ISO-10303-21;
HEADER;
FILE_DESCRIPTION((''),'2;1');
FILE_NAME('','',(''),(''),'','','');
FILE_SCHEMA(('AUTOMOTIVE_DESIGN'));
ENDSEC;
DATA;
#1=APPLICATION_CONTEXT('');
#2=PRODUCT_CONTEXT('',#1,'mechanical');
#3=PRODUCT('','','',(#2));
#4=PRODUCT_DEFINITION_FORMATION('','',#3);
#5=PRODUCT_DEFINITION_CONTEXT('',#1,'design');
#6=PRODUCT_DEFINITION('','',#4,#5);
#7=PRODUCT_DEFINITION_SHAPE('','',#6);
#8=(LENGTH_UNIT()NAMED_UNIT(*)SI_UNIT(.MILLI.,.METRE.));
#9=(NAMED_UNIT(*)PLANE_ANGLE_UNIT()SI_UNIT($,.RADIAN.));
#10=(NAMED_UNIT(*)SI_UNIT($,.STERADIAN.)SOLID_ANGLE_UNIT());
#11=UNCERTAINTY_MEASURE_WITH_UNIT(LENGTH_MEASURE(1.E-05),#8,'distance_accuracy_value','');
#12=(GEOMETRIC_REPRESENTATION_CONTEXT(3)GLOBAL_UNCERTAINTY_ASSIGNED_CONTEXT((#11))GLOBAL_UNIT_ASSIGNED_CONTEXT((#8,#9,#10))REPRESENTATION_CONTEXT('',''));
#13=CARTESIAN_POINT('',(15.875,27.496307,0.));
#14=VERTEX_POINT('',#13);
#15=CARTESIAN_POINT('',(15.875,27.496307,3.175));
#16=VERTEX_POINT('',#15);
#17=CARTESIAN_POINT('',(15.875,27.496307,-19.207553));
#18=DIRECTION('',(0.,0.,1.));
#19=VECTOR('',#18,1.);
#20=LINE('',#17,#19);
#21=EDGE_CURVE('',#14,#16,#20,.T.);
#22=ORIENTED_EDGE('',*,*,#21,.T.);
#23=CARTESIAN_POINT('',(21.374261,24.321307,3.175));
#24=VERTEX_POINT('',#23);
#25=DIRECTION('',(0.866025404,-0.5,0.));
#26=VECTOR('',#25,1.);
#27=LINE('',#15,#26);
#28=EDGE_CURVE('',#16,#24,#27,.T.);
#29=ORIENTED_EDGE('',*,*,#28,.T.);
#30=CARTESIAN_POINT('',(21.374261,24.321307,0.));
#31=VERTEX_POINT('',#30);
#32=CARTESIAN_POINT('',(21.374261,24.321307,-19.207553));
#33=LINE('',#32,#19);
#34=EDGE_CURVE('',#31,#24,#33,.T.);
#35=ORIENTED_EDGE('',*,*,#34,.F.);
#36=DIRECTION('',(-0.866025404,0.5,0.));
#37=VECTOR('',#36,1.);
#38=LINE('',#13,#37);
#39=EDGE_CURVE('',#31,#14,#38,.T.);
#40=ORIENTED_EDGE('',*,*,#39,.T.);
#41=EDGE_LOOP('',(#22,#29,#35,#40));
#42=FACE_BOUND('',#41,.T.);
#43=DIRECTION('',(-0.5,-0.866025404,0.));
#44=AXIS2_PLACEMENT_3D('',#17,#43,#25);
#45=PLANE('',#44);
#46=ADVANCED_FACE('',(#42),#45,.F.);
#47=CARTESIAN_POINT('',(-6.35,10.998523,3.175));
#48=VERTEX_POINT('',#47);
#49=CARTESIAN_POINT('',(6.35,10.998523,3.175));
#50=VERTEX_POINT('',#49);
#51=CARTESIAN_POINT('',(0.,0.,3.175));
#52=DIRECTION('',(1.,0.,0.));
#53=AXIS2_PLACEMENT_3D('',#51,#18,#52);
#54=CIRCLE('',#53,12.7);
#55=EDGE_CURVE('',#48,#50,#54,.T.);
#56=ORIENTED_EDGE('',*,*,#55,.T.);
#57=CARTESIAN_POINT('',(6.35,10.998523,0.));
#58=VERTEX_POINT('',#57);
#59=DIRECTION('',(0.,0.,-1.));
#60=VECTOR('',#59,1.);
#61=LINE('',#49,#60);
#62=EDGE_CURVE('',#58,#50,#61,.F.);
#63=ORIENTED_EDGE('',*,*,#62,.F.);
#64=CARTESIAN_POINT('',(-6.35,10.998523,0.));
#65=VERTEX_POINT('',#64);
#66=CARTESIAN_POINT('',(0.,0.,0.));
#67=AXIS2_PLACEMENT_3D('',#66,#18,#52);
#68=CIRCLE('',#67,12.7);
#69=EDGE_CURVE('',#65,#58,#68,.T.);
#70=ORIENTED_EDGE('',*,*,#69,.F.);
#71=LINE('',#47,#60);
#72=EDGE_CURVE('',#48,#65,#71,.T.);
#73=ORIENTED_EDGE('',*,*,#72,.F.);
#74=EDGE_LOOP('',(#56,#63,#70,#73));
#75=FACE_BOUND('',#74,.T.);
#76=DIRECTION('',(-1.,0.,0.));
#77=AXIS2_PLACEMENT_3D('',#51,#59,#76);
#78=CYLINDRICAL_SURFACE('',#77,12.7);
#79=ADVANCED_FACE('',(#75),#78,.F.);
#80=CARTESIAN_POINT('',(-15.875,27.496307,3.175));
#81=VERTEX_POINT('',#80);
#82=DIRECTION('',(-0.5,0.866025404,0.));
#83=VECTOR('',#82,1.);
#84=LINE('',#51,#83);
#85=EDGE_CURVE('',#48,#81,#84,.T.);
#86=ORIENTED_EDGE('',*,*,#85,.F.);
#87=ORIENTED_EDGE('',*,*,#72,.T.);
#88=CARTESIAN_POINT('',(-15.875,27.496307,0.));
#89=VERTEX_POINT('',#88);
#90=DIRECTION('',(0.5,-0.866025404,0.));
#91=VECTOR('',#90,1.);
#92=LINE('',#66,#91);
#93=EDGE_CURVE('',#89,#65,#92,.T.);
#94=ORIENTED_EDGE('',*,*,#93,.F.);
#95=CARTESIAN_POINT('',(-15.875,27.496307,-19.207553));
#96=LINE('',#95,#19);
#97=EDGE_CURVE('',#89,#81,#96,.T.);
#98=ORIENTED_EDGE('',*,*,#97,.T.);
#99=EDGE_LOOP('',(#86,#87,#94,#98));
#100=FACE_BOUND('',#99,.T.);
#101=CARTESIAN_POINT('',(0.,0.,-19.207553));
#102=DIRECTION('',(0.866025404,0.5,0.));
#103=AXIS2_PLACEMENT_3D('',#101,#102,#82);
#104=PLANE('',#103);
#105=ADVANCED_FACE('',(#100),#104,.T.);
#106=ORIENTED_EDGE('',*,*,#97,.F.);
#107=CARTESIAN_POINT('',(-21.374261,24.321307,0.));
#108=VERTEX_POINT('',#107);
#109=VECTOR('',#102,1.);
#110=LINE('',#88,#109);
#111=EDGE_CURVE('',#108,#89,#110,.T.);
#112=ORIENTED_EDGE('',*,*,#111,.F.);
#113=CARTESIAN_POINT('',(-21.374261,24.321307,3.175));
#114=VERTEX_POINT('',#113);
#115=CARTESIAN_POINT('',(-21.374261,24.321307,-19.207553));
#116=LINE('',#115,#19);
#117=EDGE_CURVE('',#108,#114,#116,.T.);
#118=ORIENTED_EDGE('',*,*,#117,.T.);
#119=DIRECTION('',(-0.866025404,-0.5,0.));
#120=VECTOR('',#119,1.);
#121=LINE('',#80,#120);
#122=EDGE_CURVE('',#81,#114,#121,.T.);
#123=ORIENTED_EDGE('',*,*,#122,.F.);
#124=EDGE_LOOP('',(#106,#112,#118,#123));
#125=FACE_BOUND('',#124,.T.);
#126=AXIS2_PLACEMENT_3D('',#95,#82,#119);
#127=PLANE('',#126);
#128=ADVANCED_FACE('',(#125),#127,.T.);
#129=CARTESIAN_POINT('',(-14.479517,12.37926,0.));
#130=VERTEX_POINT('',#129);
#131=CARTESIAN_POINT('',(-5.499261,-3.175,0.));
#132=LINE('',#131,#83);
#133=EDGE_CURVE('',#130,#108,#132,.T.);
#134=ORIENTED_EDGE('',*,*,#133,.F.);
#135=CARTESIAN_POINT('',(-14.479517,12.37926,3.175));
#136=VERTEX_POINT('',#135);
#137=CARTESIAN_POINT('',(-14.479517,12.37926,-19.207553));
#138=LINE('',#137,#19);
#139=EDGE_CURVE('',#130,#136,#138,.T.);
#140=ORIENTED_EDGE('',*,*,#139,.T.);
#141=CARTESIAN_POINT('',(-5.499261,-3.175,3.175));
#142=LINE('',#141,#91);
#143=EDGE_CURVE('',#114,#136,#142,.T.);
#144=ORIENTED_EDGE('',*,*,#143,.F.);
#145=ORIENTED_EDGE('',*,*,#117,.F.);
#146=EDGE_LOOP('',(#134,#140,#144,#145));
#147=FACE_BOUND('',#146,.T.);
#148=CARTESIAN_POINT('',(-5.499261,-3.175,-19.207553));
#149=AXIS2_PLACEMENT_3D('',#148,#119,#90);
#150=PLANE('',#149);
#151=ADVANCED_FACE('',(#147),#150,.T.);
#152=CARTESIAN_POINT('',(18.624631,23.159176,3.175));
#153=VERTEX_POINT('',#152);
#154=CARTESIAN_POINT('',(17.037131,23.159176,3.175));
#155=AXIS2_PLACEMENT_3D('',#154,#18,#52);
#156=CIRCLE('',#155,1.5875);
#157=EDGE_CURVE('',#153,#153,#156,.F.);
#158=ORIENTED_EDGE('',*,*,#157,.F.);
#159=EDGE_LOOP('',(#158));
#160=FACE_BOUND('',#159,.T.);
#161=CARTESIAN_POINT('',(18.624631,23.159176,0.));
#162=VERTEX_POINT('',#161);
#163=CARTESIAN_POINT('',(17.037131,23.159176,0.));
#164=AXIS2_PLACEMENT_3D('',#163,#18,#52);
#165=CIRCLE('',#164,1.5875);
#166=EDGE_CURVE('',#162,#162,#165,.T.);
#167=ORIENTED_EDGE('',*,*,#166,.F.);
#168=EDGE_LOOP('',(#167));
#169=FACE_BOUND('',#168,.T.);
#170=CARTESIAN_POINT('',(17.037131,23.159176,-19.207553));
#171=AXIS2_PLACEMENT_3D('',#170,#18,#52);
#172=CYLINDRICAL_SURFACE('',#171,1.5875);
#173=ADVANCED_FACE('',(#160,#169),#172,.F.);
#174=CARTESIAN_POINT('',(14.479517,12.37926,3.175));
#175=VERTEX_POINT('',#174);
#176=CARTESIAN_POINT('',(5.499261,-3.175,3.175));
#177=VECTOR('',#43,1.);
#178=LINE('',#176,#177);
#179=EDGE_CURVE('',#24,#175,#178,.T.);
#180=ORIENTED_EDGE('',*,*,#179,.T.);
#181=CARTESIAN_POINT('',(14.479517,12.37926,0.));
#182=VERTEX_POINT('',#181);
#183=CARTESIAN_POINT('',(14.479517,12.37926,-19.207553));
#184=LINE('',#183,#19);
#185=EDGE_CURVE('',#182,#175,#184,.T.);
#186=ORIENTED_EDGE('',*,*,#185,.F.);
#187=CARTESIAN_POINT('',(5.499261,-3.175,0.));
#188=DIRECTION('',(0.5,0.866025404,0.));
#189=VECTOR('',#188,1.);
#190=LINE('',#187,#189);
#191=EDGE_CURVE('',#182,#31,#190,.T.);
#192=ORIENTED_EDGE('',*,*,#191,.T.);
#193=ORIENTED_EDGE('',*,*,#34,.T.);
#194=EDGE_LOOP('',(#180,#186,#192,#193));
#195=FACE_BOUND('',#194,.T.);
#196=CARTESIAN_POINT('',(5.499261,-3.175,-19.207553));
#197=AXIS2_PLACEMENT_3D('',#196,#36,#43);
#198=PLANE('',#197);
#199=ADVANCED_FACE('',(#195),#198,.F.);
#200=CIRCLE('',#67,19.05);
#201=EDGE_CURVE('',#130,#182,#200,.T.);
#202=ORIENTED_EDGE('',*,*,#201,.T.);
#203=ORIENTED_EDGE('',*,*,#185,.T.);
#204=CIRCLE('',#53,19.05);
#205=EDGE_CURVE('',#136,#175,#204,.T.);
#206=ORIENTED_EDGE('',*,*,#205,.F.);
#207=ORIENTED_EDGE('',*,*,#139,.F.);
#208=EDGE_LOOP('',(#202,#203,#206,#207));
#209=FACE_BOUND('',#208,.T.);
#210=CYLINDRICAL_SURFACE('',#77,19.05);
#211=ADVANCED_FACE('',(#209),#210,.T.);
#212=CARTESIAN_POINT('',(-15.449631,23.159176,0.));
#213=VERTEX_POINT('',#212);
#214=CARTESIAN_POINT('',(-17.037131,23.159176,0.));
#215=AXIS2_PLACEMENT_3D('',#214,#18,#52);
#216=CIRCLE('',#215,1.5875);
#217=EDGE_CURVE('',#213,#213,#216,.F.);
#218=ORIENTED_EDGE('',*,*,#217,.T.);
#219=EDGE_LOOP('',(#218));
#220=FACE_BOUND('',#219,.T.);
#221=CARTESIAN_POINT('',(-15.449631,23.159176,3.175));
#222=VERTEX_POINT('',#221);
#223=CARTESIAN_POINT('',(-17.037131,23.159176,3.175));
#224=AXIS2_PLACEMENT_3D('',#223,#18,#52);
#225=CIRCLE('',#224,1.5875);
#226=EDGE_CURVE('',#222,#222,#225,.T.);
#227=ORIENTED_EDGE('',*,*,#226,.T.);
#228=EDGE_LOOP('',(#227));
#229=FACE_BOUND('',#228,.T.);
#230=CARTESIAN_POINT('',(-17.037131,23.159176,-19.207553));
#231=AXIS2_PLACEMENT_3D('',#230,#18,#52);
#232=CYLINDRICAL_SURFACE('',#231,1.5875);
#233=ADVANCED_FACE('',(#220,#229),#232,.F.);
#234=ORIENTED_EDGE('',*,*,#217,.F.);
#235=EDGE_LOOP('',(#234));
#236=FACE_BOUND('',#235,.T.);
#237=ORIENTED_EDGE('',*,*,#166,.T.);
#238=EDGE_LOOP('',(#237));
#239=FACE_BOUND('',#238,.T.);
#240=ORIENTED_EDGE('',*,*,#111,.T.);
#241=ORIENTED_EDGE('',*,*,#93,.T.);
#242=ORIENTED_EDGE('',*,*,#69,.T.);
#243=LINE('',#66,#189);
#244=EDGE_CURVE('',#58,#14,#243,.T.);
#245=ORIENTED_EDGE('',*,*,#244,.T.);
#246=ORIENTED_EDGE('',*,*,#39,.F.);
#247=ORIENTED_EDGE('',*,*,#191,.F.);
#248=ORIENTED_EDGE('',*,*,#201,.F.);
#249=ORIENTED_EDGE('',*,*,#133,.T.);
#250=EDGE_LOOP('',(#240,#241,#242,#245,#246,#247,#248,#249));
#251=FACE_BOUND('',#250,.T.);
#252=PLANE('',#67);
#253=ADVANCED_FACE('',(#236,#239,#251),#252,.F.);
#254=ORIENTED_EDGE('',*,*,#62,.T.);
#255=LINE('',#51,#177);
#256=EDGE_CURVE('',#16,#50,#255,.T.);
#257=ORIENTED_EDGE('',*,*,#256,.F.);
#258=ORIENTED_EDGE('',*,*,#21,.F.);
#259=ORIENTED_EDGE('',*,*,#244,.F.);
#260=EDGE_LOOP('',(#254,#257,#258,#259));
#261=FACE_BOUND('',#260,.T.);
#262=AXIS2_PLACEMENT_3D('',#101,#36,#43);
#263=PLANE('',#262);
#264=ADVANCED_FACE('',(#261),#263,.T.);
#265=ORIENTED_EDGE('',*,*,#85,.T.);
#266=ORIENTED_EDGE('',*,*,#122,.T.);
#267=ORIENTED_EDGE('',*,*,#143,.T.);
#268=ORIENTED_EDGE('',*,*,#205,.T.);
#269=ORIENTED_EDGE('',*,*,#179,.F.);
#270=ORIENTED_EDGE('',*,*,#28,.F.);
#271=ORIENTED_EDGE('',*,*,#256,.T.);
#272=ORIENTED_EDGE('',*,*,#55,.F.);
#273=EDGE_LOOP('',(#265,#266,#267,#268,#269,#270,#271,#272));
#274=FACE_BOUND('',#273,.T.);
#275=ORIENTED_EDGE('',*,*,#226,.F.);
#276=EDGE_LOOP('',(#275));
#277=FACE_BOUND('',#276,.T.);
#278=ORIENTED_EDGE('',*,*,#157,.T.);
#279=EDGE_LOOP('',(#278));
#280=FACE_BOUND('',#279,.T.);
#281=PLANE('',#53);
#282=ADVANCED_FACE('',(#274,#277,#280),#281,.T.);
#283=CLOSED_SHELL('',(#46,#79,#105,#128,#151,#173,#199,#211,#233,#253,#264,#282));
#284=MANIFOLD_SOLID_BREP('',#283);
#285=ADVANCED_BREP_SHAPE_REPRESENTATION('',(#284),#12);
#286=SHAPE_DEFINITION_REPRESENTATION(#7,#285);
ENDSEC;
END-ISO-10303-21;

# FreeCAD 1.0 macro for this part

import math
import FreeCAD as App
import Part
import Sketcher

V = App.Vector
Q = App.Units.Quantity

doc = App.newDocument("Part")
body = doc.addObject("PartDesign::Body", "Body")

# Sketch on XY plane
sketch1 = body.newObject("Sketcher::SketchObject", "Sketch")
sketch1.AttachmentSupport = (doc.getObject("XY_Plane"), [""])
sketch1.MapMode = "FlatFace"
sketch1.addGeometry(Part.Circle(V(0, 0, 0), V(0, 0, 1), 19.05), False)
sketch1.addGeometry(Part.Circle(V(0, 0, 0), V(0, 0, 1), 12.7), False)
sketch1.addConstraint(Sketcher.Constraint("Coincident", 0, 3, -1, 1))
sketch1.addConstraint(Sketcher.Constraint("Coincident", 1, 3, -1, 1))
sketch1.addConstraint(Sketcher.Constraint("Diameter", 1, Q("1 in")))
sketch1.addConstraint(Sketcher.Constraint("Diameter", 0, Q("1.5 in")))
pad1 = body.newObject("PartDesign::Pad", "Pad")
pad1.Profile = sketch1
pad1.Length = Q("0.125 in")

# Sketch on XY plane
sketch2 = body.newObject("Sketcher::SketchObject", "Sketch001")
sketch2.AttachmentSupport = (doc.getObject("XY_Plane"), [""])
sketch2.MapMode = "FlatFace"
sketch2.AttachmentOffset = App.Placement(V(0, 0, 0.125 * 25.4), App.Rotation())
sketch2.addGeometry(Part.ArcOfCircle(Part.Circle(V(0, 0, 0), V(0, 0, 1), 19.05), math.radians(120), math.radians(139.471221)), False)
sketch2.addGeometry(Part.LineSegment(V(-9.525, 16.497784, 0), V(-15.875, 27.496307, 0)), False)
sketch2.addGeometry(Part.LineSegment(V(-15.875, 27.496307, 0), V(-21.374261, 24.321307, 0)), False)
sketch2.addGeometry(Part.LineSegment(V(-21.374261, 24.321307, 0), V(-15.024261, 13.322784, 0)), False)
sketch2.addGeometry(Part.LineSegment(V(-15.024261, 13.322784, 0), V(-14.479517, 12.37926, 0)), False)
sketch2.addGeometry(Part.Circle(V(-17.037131, 23.159176, 0), V(0, 0, 1), 1.5875), False)
sketch2.addGeometry(Part.LineSegment(V(15.875, 27.496307, 0), V(9.525, 16.497784, 0)), False)
sketch2.addGeometry(Part.ArcOfCircle(Part.Circle(V(0, 0, 0), V(0, 0, 1), 19.05), math.radians(40.528779), math.radians(60)), False)
sketch2.addGeometry(Part.LineSegment(V(14.479517, 12.37926, 0), V(15.024261, 13.322784, 0)), False)
sketch2.addGeometry(Part.LineSegment(V(15.024261, 13.322784, 0), V(21.374261, 24.321307, 0)), False)
sketch2.addGeometry(Part.LineSegment(V(21.374261, 24.321307, 0), V(15.875, 27.496307, 0)), False)
sketch2.addGeometry(Part.Circle(V(17.037131, 23.159176, 0), V(0, 0, 1), 1.5875), False)
sketch2.addConstraint(Sketcher.Constraint("Coincident", 0, 1, 1, 1))
sketch2.addConstraint(Sketcher.Constraint("Coincident", 1, 2, 2, 1))
sketch2.addConstraint(Sketcher.Constraint("Coincident", 2, 2, 3, 1))
sketch2.addConstraint(Sketcher.Constraint("Coincident", 3, 2, 4, 1))
sketch2.addConstraint(Sketcher.Constraint("Coincident", 4, 2, 0, 2))
sketch2.addConstraint(Sketcher.Constraint("Coincident", 6, 2, 7, 2))
sketch2.addConstraint(Sketcher.Constraint("Coincident", 7, 1, 8, 1))
sketch2.addConstraint(Sketcher.Constraint("Coincident", 8, 2, 9, 1))
sketch2.addConstraint(Sketcher.Constraint("Coincident", 9, 2, 10, 1))
sketch2.addConstraint(Sketcher.Constraint("Coincident", 10, 2, 6, 1))
sketch2.addConstraint(Sketcher.Constraint("Coincident", 0, 3, -1, 1))
sketch2.addConstraint(Sketcher.Constraint("Coincident", 7, 3, -1, 1))
sketch2.addConstraint(Sketcher.Constraint("Equal", 0, 7))
sketch2.addConstraint(Sketcher.Constraint("Equal", 5, 11))
sketch2.addConstraint(Sketcher.Constraint("Symmetric", 5, 3, 11, 3, -2))
sketch2.addConstraint(Sketcher.Constraint("Symmetric", 3, 2, 8, 2, -2))
sketch2.addConstraint(Sketcher.Constraint("Symmetric", 2, 2, 9, 2, -2))
sketch2.addConstraint(Sketcher.Constraint("Symmetric", 1, 2, 10, 2, -2))
sketch2.addConstraint(Sketcher.Constraint("Perpendicular", 1, 2))
sketch2.addConstraint(Sketcher.Constraint("Perpendicular", 2, 3))
sketch2.addConstraint(Sketcher.Constraint("Parallel", 3, 4))
sketch2.addConstraint(Sketcher.Constraint("Parallel", 6, 8))
sketch2.addConstraint(Sketcher.Constraint("Parallel", 8, 9))
sketch2.addConstraint(Sketcher.Constraint("Equal", 1, 3))
sketch2.addConstraint(Sketcher.Constraint("Radius", 0, Q("0.75 in")))
sketch2.addConstraint(Sketcher.Constraint("Diameter", 5, Q("0.125 in")))
sketch2.addConstraint(Sketcher.Constraint("Angle", 1, Q("120 deg")))
sketch2.addConstraint(Sketcher.Constraint("Distance", 1, Q("0.5 in")))
sketch2.addConstraint(Sketcher.Constraint("Distance", 2, Q("0.25 in")))
sketch2.addConstraint(Sketcher.Constraint("DistanceX", 0, 1, 6, 2, Q("0.75 in")))
sketch2.addConstraint(Sketcher.Constraint("DistanceX", 5, 3, -1, 1, Q("17.037131 mm")))
sketch2.addConstraint(Sketcher.Constraint("DistanceY", 0, 1, 5, 3, Q("6.661392 mm")))
pad2 = body.newObject("PartDesign::Pad", "Pad001")
pad2.Profile = sketch2
pad2.Length = Q("0.125 in")
pad2.Reversed = True

# Sketch on XY plane
sketch3 = body.newObject("Sketcher::SketchObject", "Sketch002")
sketch3.AttachmentSupport = (doc.getObject("XY_Plane"), [""])
sketch3.MapMode = "FlatFace"
sketch3.AttachmentOffset = App.Placement(V(0, 0, 0.125 * 25.4), App.Rotation())
sketch3.addGeometry(Part.LineSegment(V(-9.525, 16.497784, 0), V(0, 0, 0)), False)
sketch3.addGeometry(Part.LineSegment(V(0, 0, 0), V(9.525, 16.497784, 0)), False)
sketch3.addGeometry(Part.ArcOfCircle(Part.Circle(V(0, 0, 0), V(0, 0, 1), 19.05), math.radians(60), math.radians(120)), False)
sketch3.addConstraint(Sketcher.Constraint("Coincident", 0, 2, 1, 1))
sketch3.addConstraint(Sketcher.Constraint("Coincident", 1, 2, 2, 1))
sketch3.addConstraint(Sketcher.Constraint("Coincident", 2, 2, 0, 1))
sketch3.addConstraint(Sketcher.Constraint("Coincident", 2, 3, -1, 1))
sketch3.addConstraint(Sketcher.Constraint("Coincident", 0, 2, -1, 1))
sketch3.addConstraint(Sketcher.Constraint("Horizontal", 1, 2, 2, 2))
sketch3.addConstraint(Sketcher.Constraint("Radius", 2, Q("0.75 in")))
sketch3.addConstraint(Sketcher.Constraint("Angle", 0, Q("-60 deg")))
pocket1 = body.newObject("PartDesign::Pocket", "Pocket")
pocket1.Profile = sketch3
pocket1.Length = Q("0.125 in")

doc.recompute()
